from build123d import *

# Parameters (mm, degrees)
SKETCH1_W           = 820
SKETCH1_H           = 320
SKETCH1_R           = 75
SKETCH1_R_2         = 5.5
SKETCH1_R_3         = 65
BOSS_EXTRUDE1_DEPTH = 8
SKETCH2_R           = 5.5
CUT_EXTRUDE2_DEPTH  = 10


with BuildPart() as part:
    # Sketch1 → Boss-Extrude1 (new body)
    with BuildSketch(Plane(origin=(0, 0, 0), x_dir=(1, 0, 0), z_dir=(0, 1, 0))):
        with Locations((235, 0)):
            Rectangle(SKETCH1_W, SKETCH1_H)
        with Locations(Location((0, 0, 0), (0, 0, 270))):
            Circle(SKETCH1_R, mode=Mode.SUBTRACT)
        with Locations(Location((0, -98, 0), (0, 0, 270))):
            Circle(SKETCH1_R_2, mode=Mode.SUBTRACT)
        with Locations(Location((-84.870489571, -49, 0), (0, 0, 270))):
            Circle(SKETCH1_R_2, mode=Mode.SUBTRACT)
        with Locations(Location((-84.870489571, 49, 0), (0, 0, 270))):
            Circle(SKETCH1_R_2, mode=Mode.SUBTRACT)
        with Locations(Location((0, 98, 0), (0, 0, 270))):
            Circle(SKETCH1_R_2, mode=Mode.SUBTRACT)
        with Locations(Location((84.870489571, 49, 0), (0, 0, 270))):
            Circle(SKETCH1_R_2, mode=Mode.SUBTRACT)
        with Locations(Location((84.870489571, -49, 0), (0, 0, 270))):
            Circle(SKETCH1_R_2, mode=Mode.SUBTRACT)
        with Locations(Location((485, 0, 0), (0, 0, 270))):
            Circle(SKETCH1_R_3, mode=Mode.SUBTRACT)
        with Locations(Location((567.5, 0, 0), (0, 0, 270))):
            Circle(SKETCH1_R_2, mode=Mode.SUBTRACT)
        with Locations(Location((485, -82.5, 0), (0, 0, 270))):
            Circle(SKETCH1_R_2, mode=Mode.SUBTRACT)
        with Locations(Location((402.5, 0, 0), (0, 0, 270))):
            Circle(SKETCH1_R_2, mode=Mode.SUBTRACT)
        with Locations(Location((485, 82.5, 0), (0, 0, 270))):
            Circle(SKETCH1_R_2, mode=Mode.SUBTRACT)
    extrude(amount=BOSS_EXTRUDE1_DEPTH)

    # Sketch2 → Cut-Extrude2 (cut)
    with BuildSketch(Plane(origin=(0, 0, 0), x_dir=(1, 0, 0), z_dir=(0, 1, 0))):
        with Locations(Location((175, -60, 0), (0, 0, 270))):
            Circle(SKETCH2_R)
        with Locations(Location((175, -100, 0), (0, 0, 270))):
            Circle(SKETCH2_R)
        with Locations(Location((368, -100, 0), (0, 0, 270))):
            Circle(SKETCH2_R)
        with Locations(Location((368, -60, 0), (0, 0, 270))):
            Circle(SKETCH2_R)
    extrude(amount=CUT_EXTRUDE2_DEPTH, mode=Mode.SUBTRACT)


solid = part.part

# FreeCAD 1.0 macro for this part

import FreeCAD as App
import Part
import Sketcher
from FreeCAD import Vector
Q = App.Units.Quantity

doc = App.newDocument("Part")
body = doc.addObject("PartDesign::Body", "Body")

# Sketch on XZ plane
sketch1 = body.newObject("Sketcher::SketchObject", "Sketch")
sketch1.AttachmentSupport = (doc.getObject("XZ_Plane"), [""])
sketch1.MapMode = "FlatFace"
sketch1.addGeometry([
    Part.LineSegment(Vector(-175, -160, 0), Vector(-175, 160, 0)),  # 0
    Part.LineSegment(Vector(-175, 160, 0), Vector(645, 160, 0)),  # 1
    Part.LineSegment(Vector(645, 160, 0), Vector(645, -160, 0)),  # 2
    Part.LineSegment(Vector(645, -160, 0), Vector(-175, -160, 0)),  # 3
    Part.Circle(Vector(0, 98, 0), Vector(0, 0, 1), 5.5),  # 4
    Part.Circle(Vector(-84.87049, 49, 0), Vector(0, 0, 1), 5.5),  # 5
    Part.Circle(Vector(84.87049, 49, 0), Vector(0, 0, 1), 5.5),  # 6
    Part.Circle(Vector(485, 82.5, 0), Vector(0, 0, 1), 5.5),  # 7
    Part.Circle(Vector(0, 0, 0), Vector(0, 0, 1), 75),  # 8
    Part.Circle(Vector(-84.87049, -49, 0), Vector(0, 0, 1), 5.5),  # 9
    Part.Circle(Vector(84.87049, -49, 0), Vector(0, 0, 1), 5.5),  # 10
    Part.Circle(Vector(0, -98, 0), Vector(0, 0, 1), 5.5),  # 11
    Part.Circle(Vector(402.5, 0, 0), Vector(0, 0, 1), 5.5),  # 12
    Part.Circle(Vector(485, 0, 0), Vector(0, 0, 1), 65),  # 13
    Part.Circle(Vector(567.5, 0, 0), Vector(0, 0, 1), 5.5),  # 14
    Part.Circle(Vector(485, -82.5, 0), Vector(0, 0, 1), 5.5),  # 15
], False)
sketch1.addConstraint([
    Sketcher.Constraint("Coincident", 0, 2, 1, 1),
    Sketcher.Constraint("Coincident", 1, 2, 2, 1),
    Sketcher.Constraint("Coincident", 2, 2, 3, 1),
    Sketcher.Constraint("Coincident", 3, 2, 0, 1),
    Sketcher.Constraint("Vertical", 0),
    Sketcher.Constraint("Horizontal", 1),
    Sketcher.Constraint("Vertical", 2),
    Sketcher.Constraint("Horizontal", 3),
    Sketcher.Constraint("Coincident", 8, 3, -1, 1),
    Sketcher.Constraint("Equal", 4, 5),
    Sketcher.Constraint("Equal", 5, 6),
    Sketcher.Constraint("Equal", 6, 7),
    Sketcher.Constraint("Equal", 7, 9),
    Sketcher.Constraint("Equal", 9, 10),
    Sketcher.Constraint("Equal", 10, 11),
    Sketcher.Constraint("Equal", 11, 12),
    Sketcher.Constraint("Equal", 12, 14),
    Sketcher.Constraint("Equal", 14, 15),
    Sketcher.Constraint("Symmetric", 6, 3, 9, 3, -1, 1),
    Sketcher.Constraint("Symmetric", 5, 3, 10, 3, -1, 1),
    Sketcher.Constraint("Symmetric", 4, 3, 11, 3, -1, 1),
    Sketcher.Constraint("Symmetric", 5, 3, 6, 3, -2),
    Sketcher.Constraint("Symmetric", 7, 3, 15, 3, -1),
    Sketcher.Constraint("PointOnObject", 4, 3, -2),
    Sketcher.Constraint("PointOnObject", 12, 3, -1),
    Sketcher.Constraint("PointOnObject", 13, 3, -1),
    Sketcher.Constraint("PointOnObject", 14, 3, -1),
    Sketcher.Constraint("Vertical", 7, 3, 13, 3),
    Sketcher.Constraint("Diameter", 4, Q("11 mm")),
    Sketcher.Constraint("Diameter", 8, Q("150 mm")),
    Sketcher.Constraint("Diameter", 13, Q("130 mm")),
    Sketcher.Constraint("DistanceX", 1, 1, 1, 2, Q("820 mm")),
    Sketcher.Constraint("DistanceY", 0, 1, 0, 2, Q("320 mm")),
    Sketcher.Constraint("DistanceY", -1, 1, 4, 3, Q("98 mm")),
    Sketcher.Constraint("DistanceY", -1, 1, 5, 3, Q("49 mm")),
    Sketcher.Constraint("DistanceX", -1, 1, 7, 3, Q("485 mm")),
    Sketcher.Constraint("DistanceX", 0, 2, -1, 1, Q("175 mm")),
    Sketcher.Constraint("DistanceY", -1, 1, 0, 2, Q("160 mm")),
    Sketcher.Constraint("DistanceX", 12, 3, 14, 3, Q("165 mm")),
    Sketcher.Constraint("DistanceY", 15, 3, 7, 3, Q("165 mm")),
    Sketcher.Constraint("DistanceX", -1, 1, 12, 3, Q("402.5 mm")),
    Sketcher.Constraint("DistanceX", 5, 3, -1, 1, Q("84.87049 mm")),
])
pad1 = body.newObject("PartDesign::Pad", "Pad")
pad1.Profile = sketch1
pad1.Length = 8
pad1.Reversed = True

# Sketch on XZ plane
sketch2 = body.newObject("Sketcher::SketchObject", "Sketch001")
sketch2.AttachmentSupport = (doc.getObject("XZ_Plane"), [""])
sketch2.MapMode = "FlatFace"
sketch2.addGeometry([
    Part.Circle(Vector(175, 60, 0), Vector(0, 0, 1), 5.5),
    Part.Circle(Vector(175, 100, 0), Vector(0, 0, 1), 5.5),
    Part.Circle(Vector(368, 100, 0), Vector(0, 0, 1), 5.5),
    Part.Circle(Vector(368, 60, 0), Vector(0, 0, 1), 5.5),
], False)
sketch2.addConstraint([
    Sketcher.Constraint("Equal", 0, 1),
    Sketcher.Constraint("Equal", 1, 2),
    Sketcher.Constraint("Equal", 2, 3),
    Sketcher.Constraint("Horizontal", 1, 3, 2, 3),
    Sketcher.Constraint("Horizontal", 0, 3, 3, 3),
    Sketcher.Constraint("Vertical", 0, 3, 1, 3),
    Sketcher.Constraint("Vertical", 2, 3, 3, 3),
    Sketcher.Constraint("Diameter", 0, Q("11 mm")),
    Sketcher.Constraint("DistanceX", -1, 1, 0, 3, Q("175 mm")),
    Sketcher.Constraint("DistanceY", -1, 1, 0, 3, Q("60 mm")),
    Sketcher.Constraint("DistanceY", -1, 1, 1, 3, Q("100 mm")),
    Sketcher.Constraint("DistanceX", -1, 1, 2, 3, Q("368 mm")),
])
pocket1 = body.newObject("PartDesign::Pocket", "Pocket")
pocket1.Profile = sketch2
pocket1.Length = 10

doc.recompute()
